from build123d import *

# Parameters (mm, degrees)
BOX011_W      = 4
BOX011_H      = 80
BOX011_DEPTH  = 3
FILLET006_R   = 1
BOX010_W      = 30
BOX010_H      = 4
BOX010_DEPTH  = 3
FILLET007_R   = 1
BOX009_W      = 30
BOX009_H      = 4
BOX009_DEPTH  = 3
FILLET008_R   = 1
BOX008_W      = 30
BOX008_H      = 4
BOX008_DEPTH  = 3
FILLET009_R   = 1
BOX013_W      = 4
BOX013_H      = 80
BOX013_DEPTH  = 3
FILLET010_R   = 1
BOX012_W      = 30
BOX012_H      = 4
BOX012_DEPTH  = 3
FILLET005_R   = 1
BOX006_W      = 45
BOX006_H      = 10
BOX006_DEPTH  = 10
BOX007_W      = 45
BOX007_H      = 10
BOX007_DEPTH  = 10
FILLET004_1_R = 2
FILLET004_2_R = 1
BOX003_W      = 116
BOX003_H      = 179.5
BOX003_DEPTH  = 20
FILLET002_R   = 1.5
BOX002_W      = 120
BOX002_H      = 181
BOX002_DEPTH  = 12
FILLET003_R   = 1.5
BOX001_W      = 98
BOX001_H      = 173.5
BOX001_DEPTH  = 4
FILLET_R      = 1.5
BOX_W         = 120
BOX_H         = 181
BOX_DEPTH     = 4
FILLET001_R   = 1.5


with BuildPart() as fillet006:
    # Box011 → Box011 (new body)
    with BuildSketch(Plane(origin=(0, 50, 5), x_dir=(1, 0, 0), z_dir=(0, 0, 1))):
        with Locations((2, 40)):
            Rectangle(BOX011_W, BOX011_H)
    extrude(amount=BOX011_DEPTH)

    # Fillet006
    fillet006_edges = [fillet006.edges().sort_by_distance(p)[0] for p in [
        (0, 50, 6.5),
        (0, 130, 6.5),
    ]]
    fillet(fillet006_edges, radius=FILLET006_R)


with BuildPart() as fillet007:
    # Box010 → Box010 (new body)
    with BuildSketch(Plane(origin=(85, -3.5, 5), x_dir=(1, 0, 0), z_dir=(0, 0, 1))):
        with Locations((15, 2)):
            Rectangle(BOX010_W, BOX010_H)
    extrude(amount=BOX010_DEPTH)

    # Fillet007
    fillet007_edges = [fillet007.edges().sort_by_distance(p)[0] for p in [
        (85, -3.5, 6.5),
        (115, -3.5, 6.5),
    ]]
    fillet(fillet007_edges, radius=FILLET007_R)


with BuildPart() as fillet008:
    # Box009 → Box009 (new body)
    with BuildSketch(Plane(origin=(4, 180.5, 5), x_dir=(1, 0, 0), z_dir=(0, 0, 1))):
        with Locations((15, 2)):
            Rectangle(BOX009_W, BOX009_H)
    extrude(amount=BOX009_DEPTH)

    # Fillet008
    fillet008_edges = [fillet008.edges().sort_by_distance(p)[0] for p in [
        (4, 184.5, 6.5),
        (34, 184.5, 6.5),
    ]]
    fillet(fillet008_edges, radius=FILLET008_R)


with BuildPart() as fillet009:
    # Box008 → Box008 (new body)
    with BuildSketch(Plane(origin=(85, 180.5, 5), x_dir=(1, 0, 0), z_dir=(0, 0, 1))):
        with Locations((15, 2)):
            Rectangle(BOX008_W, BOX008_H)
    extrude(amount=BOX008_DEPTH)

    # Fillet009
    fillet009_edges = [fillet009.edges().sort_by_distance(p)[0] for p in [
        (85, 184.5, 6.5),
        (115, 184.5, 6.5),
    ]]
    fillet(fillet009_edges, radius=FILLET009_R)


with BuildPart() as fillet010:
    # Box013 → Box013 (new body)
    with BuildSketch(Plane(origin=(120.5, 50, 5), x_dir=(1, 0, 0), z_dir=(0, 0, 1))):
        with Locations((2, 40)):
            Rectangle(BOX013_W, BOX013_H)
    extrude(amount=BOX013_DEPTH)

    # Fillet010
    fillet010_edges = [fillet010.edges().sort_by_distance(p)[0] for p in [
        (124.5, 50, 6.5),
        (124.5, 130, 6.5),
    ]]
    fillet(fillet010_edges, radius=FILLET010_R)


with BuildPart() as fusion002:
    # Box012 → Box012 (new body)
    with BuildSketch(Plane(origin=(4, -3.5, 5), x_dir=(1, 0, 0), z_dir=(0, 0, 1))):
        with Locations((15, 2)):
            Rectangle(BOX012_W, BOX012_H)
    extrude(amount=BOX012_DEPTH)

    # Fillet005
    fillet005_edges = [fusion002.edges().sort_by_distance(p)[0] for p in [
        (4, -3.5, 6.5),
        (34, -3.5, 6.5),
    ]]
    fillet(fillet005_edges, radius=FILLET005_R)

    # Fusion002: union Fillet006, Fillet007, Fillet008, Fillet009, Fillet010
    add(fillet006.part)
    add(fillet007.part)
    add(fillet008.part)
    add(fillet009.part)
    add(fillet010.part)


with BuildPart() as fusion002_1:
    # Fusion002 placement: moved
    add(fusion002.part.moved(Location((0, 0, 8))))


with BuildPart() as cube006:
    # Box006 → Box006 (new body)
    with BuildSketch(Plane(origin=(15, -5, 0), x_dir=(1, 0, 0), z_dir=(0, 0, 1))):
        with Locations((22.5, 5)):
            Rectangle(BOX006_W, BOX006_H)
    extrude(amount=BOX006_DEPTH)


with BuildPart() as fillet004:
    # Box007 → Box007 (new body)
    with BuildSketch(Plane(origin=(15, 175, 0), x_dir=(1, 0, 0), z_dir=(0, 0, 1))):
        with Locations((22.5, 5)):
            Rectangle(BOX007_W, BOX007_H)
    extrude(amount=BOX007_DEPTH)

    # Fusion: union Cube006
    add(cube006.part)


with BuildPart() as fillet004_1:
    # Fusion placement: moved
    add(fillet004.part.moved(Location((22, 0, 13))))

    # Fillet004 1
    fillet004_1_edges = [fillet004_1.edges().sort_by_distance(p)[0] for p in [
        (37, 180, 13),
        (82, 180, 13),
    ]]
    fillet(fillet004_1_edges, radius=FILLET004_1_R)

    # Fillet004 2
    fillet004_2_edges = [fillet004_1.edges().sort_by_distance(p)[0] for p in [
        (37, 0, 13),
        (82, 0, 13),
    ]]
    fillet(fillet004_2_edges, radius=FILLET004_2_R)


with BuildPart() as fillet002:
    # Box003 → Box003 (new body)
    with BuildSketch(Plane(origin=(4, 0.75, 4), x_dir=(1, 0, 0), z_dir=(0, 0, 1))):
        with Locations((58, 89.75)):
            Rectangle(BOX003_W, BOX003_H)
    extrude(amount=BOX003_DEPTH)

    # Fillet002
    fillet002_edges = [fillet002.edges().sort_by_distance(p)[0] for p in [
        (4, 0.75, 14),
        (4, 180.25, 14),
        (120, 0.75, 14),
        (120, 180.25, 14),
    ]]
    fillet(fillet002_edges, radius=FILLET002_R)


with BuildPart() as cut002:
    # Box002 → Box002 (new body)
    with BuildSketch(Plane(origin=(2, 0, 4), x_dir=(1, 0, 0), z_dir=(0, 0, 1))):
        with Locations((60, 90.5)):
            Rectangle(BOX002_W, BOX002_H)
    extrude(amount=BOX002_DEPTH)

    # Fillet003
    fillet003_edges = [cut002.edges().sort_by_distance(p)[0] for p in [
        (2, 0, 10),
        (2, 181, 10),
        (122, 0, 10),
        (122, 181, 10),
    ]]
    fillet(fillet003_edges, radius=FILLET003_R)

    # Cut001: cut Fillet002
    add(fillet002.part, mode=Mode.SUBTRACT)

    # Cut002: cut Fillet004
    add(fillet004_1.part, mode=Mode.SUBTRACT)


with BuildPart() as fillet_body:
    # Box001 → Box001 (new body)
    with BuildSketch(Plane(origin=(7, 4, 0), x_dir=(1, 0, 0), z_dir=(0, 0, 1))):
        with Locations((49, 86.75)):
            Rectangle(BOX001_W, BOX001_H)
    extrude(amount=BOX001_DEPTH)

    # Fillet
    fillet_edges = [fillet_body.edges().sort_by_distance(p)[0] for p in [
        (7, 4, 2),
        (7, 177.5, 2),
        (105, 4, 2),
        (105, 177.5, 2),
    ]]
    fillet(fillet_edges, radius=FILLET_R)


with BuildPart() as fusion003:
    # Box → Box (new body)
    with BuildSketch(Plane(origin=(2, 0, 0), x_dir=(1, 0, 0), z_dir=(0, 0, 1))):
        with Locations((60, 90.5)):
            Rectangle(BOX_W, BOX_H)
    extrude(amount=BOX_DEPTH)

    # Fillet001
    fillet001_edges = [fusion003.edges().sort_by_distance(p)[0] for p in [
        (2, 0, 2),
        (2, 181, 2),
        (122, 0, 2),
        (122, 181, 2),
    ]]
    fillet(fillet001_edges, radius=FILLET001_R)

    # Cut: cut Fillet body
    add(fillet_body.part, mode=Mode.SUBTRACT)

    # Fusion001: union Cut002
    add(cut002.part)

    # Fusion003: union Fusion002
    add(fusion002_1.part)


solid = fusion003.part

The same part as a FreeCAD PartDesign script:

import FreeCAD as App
import Part
import Sketcher

V = App.Vector


def edges_at(feature, points):
    """Names of the edges that pass closest to the given points."""
    edges = feature.Shape.Edges
    near = lambda p: min(range(len(edges)), key=lambda i: edges[i].distToShape(Part.Vertex(*p))[0])
    return sorted({f"Edge{near(p) + 1}" for p in points})

doc = App.newDocument("Part")
body = doc.addObject("PartDesign::Body", "Body")

sketch1 = doc.addObject("Sketcher::SketchObject", "Sketch")
body.addObject(sketch1)
sketch1.AttachmentSupport = (doc.XY_Plane, [""])
sketch1.MapMode = "FlatFace"
sketch1.AttachmentOffset = App.Placement(V(0, 0, 5), App.Rotation())
sketch1.addGeometry([
    Part.LineSegment(V(0, 130, 0), V(0, 50, 0)),
    Part.LineSegment(V(0, 50, 0), V(4, 50, 0)),
    Part.LineSegment(V(4, 50, 0), V(4, 130, 0)),
    Part.LineSegment(V(4, 130, 0), V(0, 130, 0)),
], False)
sketch1.addConstraint([
    Sketcher.Constraint("Coincident", 0, 2, 1, 1),
    Sketcher.Constraint("Coincident", 1, 2, 2, 1),
    Sketcher.Constraint("Coincident", 2, 2, 3, 1),
    Sketcher.Constraint("Coincident", 3, 2, 0, 1),
    Sketcher.Constraint("Vertical", 0),
    Sketcher.Constraint("Horizontal", 1),
    Sketcher.Constraint("Vertical", 2),
    Sketcher.Constraint("Horizontal", 3),
    Sketcher.Constraint("PointOnObject", 0, 2, -2),
    Sketcher.Constraint("DistanceX", 1, 1, 1, 2, 4.0),
    Sketcher.Constraint("DistanceY", 0, 2, 0, 1, 80.0),
    Sketcher.Constraint("DistanceY", -1, 1, 0, 2, 50.0),
])
pad1 = doc.addObject("PartDesign::Pad", "Pad")
body.addObject(pad1)
pad1.Profile = sketch1
pad1.Length = 3
doc.recompute()

fillet = doc.addObject("PartDesign::Fillet", "Fillet")
body.addObject(fillet)
fillet.Base = (pad1, edges_at(pad1, [(0, 50, 6.5), (0, 130, 6.5)]))
fillet.Radius = 1
body2 = doc.addObject("PartDesign::Body", "Body001")

sketch2 = doc.addObject("Sketcher::SketchObject", "Sketch001")
body2.addObject(sketch2)
sketch2.AttachmentSupport = (doc.getObject("XY_Plane001"), [""])
sketch2.MapMode = "FlatFace"
sketch2.AttachmentOffset = App.Placement(V(0, 0, 5), App.Rotation())
sketch2.addGeometry([
    Part.LineSegment(V(85, 0.5, 0), V(85, -3.5, 0)),
    Part.LineSegment(V(85, -3.5, 0), V(115, -3.5, 0)),
    Part.LineSegment(V(115, -3.5, 0), V(115, 0.5, 0)),
    Part.LineSegment(V(115, 0.5, 0), V(85, 0.5, 0)),
], False)
sketch2.addConstraint([
    Sketcher.Constraint("Coincident", 0, 2, 1, 1),
    Sketcher.Constraint("Coincident", 1, 2, 2, 1),
    Sketcher.Constraint("Coincident", 2, 2, 3, 1),
    Sketcher.Constraint("Coincident", 3, 2, 0, 1),
    Sketcher.Constraint("Vertical", 0),
    Sketcher.Constraint("Horizontal", 1),
    Sketcher.Constraint("Vertical", 2),
    Sketcher.Constraint("Horizontal", 3),
    Sketcher.Constraint("DistanceX", 1, 1, 1, 2, 30.0),
    Sketcher.Constraint("DistanceY", 0, 2, 0, 1, 4.0),
    Sketcher.Constraint("DistanceX", -1, 1, 0, 2, 85.0),
    Sketcher.Constraint("DistanceY", 0, 2, -1, 1, 3.5),
])
pad2 = doc.addObject("PartDesign::Pad", "Pad001")
body2.addObject(pad2)
pad2.Profile = sketch2
pad2.Length = 3
doc.recompute()

fillet2 = doc.addObject("PartDesign::Fillet", "Fillet001")
body2.addObject(fillet2)
fillet2.Base = (pad2, edges_at(pad2, [(85, -3.5, 6.5), (115, -3.5, 6.5)]))
fillet2.Radius = 1
body3 = doc.addObject("PartDesign::Body", "Body002")

sketch3 = doc.addObject("Sketcher::SketchObject", "Sketch002")
body3.addObject(sketch3)
sketch3.AttachmentSupport = (doc.getObject("XY_Plane002"), [""])
sketch3.MapMode = "FlatFace"
sketch3.AttachmentOffset = App.Placement(V(0, 0, 5), App.Rotation())
sketch3.addGeometry([
    Part.LineSegment(V(4, 184.5, 0), V(4, 180.5, 0)),
    Part.LineSegment(V(4, 180.5, 0), V(34, 180.5, 0)),
    Part.LineSegment(V(34, 180.5, 0), V(34, 184.5, 0)),
    Part.LineSegment(V(34, 184.5, 0), V(4, 184.5, 0)),
], False)
sketch3.addConstraint([
    Sketcher.Constraint("Coincident", 0, 2, 1, 1),
    Sketcher.Constraint("Coincident", 1, 2, 2, 1),
    Sketcher.Constraint("Coincident", 2, 2, 3, 1),
    Sketcher.Constraint("Coincident", 3, 2, 0, 1),
    Sketcher.Constraint("Vertical", 0),
    Sketcher.Constraint("Horizontal", 1),
    Sketcher.Constraint("Vertical", 2),
    Sketcher.Constraint("Horizontal", 3),
    Sketcher.Constraint("DistanceX", 1, 1, 1, 2, 30.0),
    Sketcher.Constraint("DistanceY", 0, 2, 0, 1, 4.0),
    Sketcher.Constraint("DistanceX", -1, 1, 0, 2, 4.0),
    Sketcher.Constraint("DistanceY", -1, 1, 0, 2, 180.5),
])
pad3 = doc.addObject("PartDesign::Pad", "Pad002")
body3.addObject(pad3)
pad3.Profile = sketch3
pad3.Length = 3
doc.recompute()

fillet3 = doc.addObject("PartDesign::Fillet", "Fillet002")
body3.addObject(fillet3)
fillet3.Base = (pad3, edges_at(pad3, [(4, 184.5, 6.5), (34, 184.5, 6.5)]))
fillet3.Radius = 1
body4 = doc.addObject("PartDesign::Body", "Body003")

sketch4 = doc.addObject("Sketcher::SketchObject", "Sketch003")
body4.addObject(sketch4)
sketch4.AttachmentSupport = (doc.getObject("XY_Plane003"), [""])
sketch4.MapMode = "FlatFace"
sketch4.AttachmentOffset = App.Placement(V(0, 0, 5), App.Rotation())
sketch4.addGeometry([
    Part.LineSegment(V(85, 184.5, 0), V(85, 180.5, 0)),
    Part.LineSegment(V(85, 180.5, 0), V(115, 180.5, 0)),
    Part.LineSegment(V(115, 180.5, 0), V(115, 184.5, 0)),
    Part.LineSegment(V(115, 184.5, 0), V(85, 184.5, 0)),
], False)
sketch4.addConstraint([
    Sketcher.Constraint("Coincident", 0, 2, 1, 1),
    Sketcher.Constraint("Coincident", 1, 2, 2, 1),
    Sketcher.Constraint("Coincident", 2, 2, 3, 1),
    Sketcher.Constraint("Coincident", 3, 2, 0, 1),
    Sketcher.Constraint("Vertical", 0),
    Sketcher.Constraint("Horizontal", 1),
    Sketcher.Constraint("Vertical", 2),
    Sketcher.Constraint("Horizontal", 3),
    Sketcher.Constraint("DistanceX", 1, 1, 1, 2, 30.0),
    Sketcher.Constraint("DistanceY", 0, 2, 0, 1, 4.0),
    Sketcher.Constraint("DistanceX", -1, 1, 0, 2, 85.0),
    Sketcher.Constraint("DistanceY", -1, 1, 0, 2, 180.5),
])
pad4 = doc.addObject("PartDesign::Pad", "Pad003")
body4.addObject(pad4)
pad4.Profile = sketch4
pad4.Length = 3
doc.recompute()

fillet4 = doc.addObject("PartDesign::Fillet", "Fillet003")
body4.addObject(fillet4)
fillet4.Base = (pad4, edges_at(pad4, [(85, 184.5, 6.5), (115, 184.5, 6.5)]))
fillet4.Radius = 1
body5 = doc.addObject("PartDesign::Body", "Body004")

sketch5 = doc.addObject("Sketcher::SketchObject", "Sketch004")
body5.addObject(sketch5)
sketch5.AttachmentSupport = (doc.getObject("XY_Plane004"), [""])
sketch5.MapMode = "FlatFace"
sketch5.AttachmentOffset = App.Placement(V(0, 0, 5), App.Rotation())
sketch5.addGeometry([
    Part.LineSegment(V(120.5, 130, 0), V(120.5, 50, 0)),
    Part.LineSegment(V(120.5, 50, 0), V(124.5, 50, 0)),
    Part.LineSegment(V(124.5, 50, 0), V(124.5, 130, 0)),
    Part.LineSegment(V(124.5, 130, 0), V(120.5, 130, 0)),
], False)
sketch5.addConstraint([
    Sketcher.Constraint("Coincident", 0, 2, 1, 1),
    Sketcher.Constraint("Coincident", 1, 2, 2, 1),
    Sketcher.Constraint("Coincident", 2, 2, 3, 1),
    Sketcher.Constraint("Coincident", 3, 2, 0, 1),
    Sketcher.Constraint("Vertical", 0),
    Sketcher.Constraint("Horizontal", 1),
    Sketcher.Constraint("Vertical", 2),
    Sketcher.Constraint("Horizontal", 3),
    Sketcher.Constraint("DistanceX", 1, 1, 1, 2, 4.0),
    Sketcher.Constraint("DistanceY", 0, 2, 0, 1, 80.0),
    Sketcher.Constraint("DistanceY", -1, 1, 0, 2, 50.0),
    Sketcher.Constraint("DistanceX", -1, 1, 0, 2, 120.5),
])
pad5 = doc.addObject("PartDesign::Pad", "Pad004")
body5.addObject(pad5)
pad5.Profile = sketch5
pad5.Length = 3
doc.recompute()

fillet5 = doc.addObject("PartDesign::Fillet", "Fillet004")
body5.addObject(fillet5)
fillet5.Base = (pad5, edges_at(pad5, [(124.5, 50, 6.5), (124.5, 130, 6.5)]))
fillet5.Radius = 1
body6 = doc.addObject("PartDesign::Body", "Body005")
body6.AllowCompound = True

sketch6 = doc.addObject("Sketcher::SketchObject", "Sketch005")
body6.addObject(sketch6)
sketch6.AttachmentSupport = (doc.getObject("XY_Plane005"), [""])
sketch6.MapMode = "FlatFace"
sketch6.AttachmentOffset = App.Placement(V(0, 0, 5), App.Rotation())
sketch6.addGeometry([
    Part.LineSegment(V(4, 0.5, 0), V(4, -3.5, 0)),
    Part.LineSegment(V(4, -3.5, 0), V(34, -3.5, 0)),
    Part.LineSegment(V(34, -3.5, 0), V(34, 0.5, 0)),
    Part.LineSegment(V(34, 0.5, 0), V(4, 0.5, 0)),
], False)
sketch6.addConstraint([
    Sketcher.Constraint("Coincident", 0, 2, 1, 1),
    Sketcher.Constraint("Coincident", 1, 2, 2, 1),
    Sketcher.Constraint("Coincident", 2, 2, 3, 1),
    Sketcher.Constraint("Coincident", 3, 2, 0, 1),
    Sketcher.Constraint("Vertical", 0),
    Sketcher.Constraint("Horizontal", 1),
    Sketcher.Constraint("Vertical", 2),
    Sketcher.Constraint("Horizontal", 3),
    Sketcher.Constraint("DistanceX", 1, 1, 1, 2, 30.0),
    Sketcher.Constraint("DistanceY", 0, 2, 0, 1, 4.0),
    Sketcher.Constraint("DistanceX", -1, 1, 0, 2, 4.0),
    Sketcher.Constraint("DistanceY", 0, 2, -1, 1, 3.5),
])
pad6 = doc.addObject("PartDesign::Pad", "Pad005")
body6.addObject(pad6)
pad6.Profile = sketch6
pad6.Length = 3
doc.recompute()

fillet6 = doc.addObject("PartDesign::Fillet", "Fillet005")
body6.addObject(fillet6)
fillet6.Base = (pad6, edges_at(pad6, [(4, -3.5, 6.5), (34, -3.5, 6.5)]))
fillet6.Radius = 1
doc.recompute()

boolean = doc.addObject("PartDesign::Boolean", "Boolean")
body6.addObject(boolean)
boolean.Type = "Fuse"
boolean.addObjects([body])
doc.recompute()

boolean2 = doc.addObject("PartDesign::Boolean", "Boolean001")
body6.addObject(boolean2)
boolean2.Type = "Fuse"
boolean2.addObjects([body2])
doc.recompute()

boolean3 = doc.addObject("PartDesign::Boolean", "Boolean002")
body6.addObject(boolean3)
boolean3.Type = "Fuse"
boolean3.addObjects([body3])
doc.recompute()

boolean4 = doc.addObject("PartDesign::Boolean", "Boolean003")
body6.addObject(boolean4)
boolean4.Type = "Fuse"
boolean4.addObjects([body4])
doc.recompute()

boolean5 = doc.addObject("PartDesign::Boolean", "Boolean004")
body6.addObject(boolean5)
boolean5.Type = "Fuse"
boolean5.addObjects([body5])
body7 = doc.addObject("PartDesign::Body", "Body006")
body7.AllowCompound = True
doc.recompute()

body6.Placement = App.Placement(V(0, 0, 8), App.Rotation(V(0, 0, 1), 0))
boolean6 = doc.addObject("PartDesign::Boolean", "Boolean005")
body7.addObject(boolean6)
boolean6.Type = "Fuse"
boolean6.addObjects([body6])
body8 = doc.addObject("PartDesign::Body", "Body007")

sketch7 = doc.addObject("Sketcher::SketchObject", "Sketch006")
body8.addObject(sketch7)
sketch7.AttachmentSupport = (doc.getObject("XY_Plane007"), [""])
sketch7.MapMode = "FlatFace"
sketch7.addGeometry([
    Part.LineSegment(V(15, 5, 0), V(15, -5, 0)),
    Part.LineSegment(V(15, -5, 0), V(60, -5, 0)),
    Part.LineSegment(V(60, -5, 0), V(60, 5, 0)),
    Part.LineSegment(V(60, 5, 0), V(15, 5, 0)),
], False)
sketch7.addConstraint([
    Sketcher.Constraint("Coincident", 0, 2, 1, 1),
    Sketcher.Constraint("Coincident", 1, 2, 2, 1),
    Sketcher.Constraint("Coincident", 2, 2, 3, 1),
    Sketcher.Constraint("Coincident", 3, 2, 0, 1),
    Sketcher.Constraint("Vertical", 0),
    Sketcher.Constraint("Horizontal", 1),
    Sketcher.Constraint("Vertical", 2),
    Sketcher.Constraint("Horizontal", 3),
    Sketcher.Constraint("DistanceX", 1, 1, 1, 2, 45.0),
    Sketcher.Constraint("DistanceY", 0, 2, 0, 1, 10.0),
    Sketcher.Constraint("DistanceX", -1, 1, 0, 2, 15.0),
    Sketcher.Constraint("DistanceY", 0, 2, -1, 1, 5.0),
])
pad7 = doc.addObject("PartDesign::Pad", "Pad006")
body8.addObject(pad7)
pad7.Profile = sketch7
pad7.Length = 10
body9 = doc.addObject("PartDesign::Body", "Body008")
body9.AllowCompound = True

sketch8 = doc.addObject("Sketcher::SketchObject", "Sketch007")
body9.addObject(sketch8)
sketch8.AttachmentSupport = (doc.getObject("XY_Plane008"), [""])
sketch8.MapMode = "FlatFace"
sketch8.addGeometry([
    Part.LineSegment(V(15, 185, 0), V(15, 175, 0)),
    Part.LineSegment(V(15, 175, 0), V(60, 175, 0)),
    Part.LineSegment(V(60, 175, 0), V(60, 185, 0)),
    Part.LineSegment(V(60, 185, 0), V(15, 185, 0)),
], False)
sketch8.addConstraint([
    Sketcher.Constraint("Coincident", 0, 2, 1, 1),
    Sketcher.Constraint("Coincident", 1, 2, 2, 1),
    Sketcher.Constraint("Coincident", 2, 2, 3, 1),
    Sketcher.Constraint("Coincident", 3, 2, 0, 1),
    Sketcher.Constraint("Vertical", 0),
    Sketcher.Constraint("Horizontal", 1),
    Sketcher.Constraint("Vertical", 2),
    Sketcher.Constraint("Horizontal", 3),
    Sketcher.Constraint("DistanceX", 1, 1, 1, 2, 45.0),
    Sketcher.Constraint("DistanceY", 0, 2, 0, 1, 10.0),
    Sketcher.Constraint("DistanceX", -1, 1, 0, 2, 15.0),
    Sketcher.Constraint("DistanceY", -1, 1, 0, 2, 175.0),
])
pad8 = doc.addObject("PartDesign::Pad", "Pad007")
body9.addObject(pad8)
pad8.Profile = sketch8
pad8.Length = 10
doc.recompute()

boolean7 = doc.addObject("PartDesign::Boolean", "Boolean006")
body9.addObject(boolean7)
boolean7.Type = "Fuse"
boolean7.addObjects([body8])
body10 = doc.addObject("PartDesign::Body", "Body009")
body10.AllowCompound = True
doc.recompute()

body9.Placement = App.Placement(V(22, 0, 13), App.Rotation(V(0, 0, 1), 0))
boolean8 = doc.addObject("PartDesign::Boolean", "Boolean007")
body10.addObject(boolean8)
boolean8.Type = "Fuse"
boolean8.addObjects([body9])
doc.recompute()

fillet7 = doc.addObject("PartDesign::Fillet", "Fillet006")
body10.addObject(fillet7)
fillet7.Base = (boolean8, edges_at(boolean8, [(37, 180, 13), (82, 180, 13)]))
fillet7.Radius = 2
doc.recompute()

fillet8 = doc.addObject("PartDesign::Fillet", "Fillet007")
body10.addObject(fillet8)
fillet8.Base = (fillet7, edges_at(fillet7, [(37, 0, 13), (82, 0, 13)]))
fillet8.Radius = 1
body11 = doc.addObject("PartDesign::Body", "Body010")

sketch9 = doc.addObject("Sketcher::SketchObject", "Sketch008")
body11.addObject(sketch9)
sketch9.AttachmentSupport = (doc.getObject("XY_Plane010"), [""])
sketch9.MapMode = "FlatFace"
sketch9.AttachmentOffset = App.Placement(V(0, 0, 4), App.Rotation())
sketch9.addGeometry([
    Part.LineSegment(V(4, 180, 0), V(4, 1, 0)),
    Part.LineSegment(V(4, 1, 0), V(120, 1, 0)),
    Part.LineSegment(V(120, 1, 0), V(120, 180, 0)),
    Part.LineSegment(V(120, 180, 0), V(4, 180, 0)),
], False)
sketch9.addConstraint([
    Sketcher.Constraint("Coincident", 0, 2, 1, 1),
    Sketcher.Constraint("Coincident", 1, 2, 2, 1),
    Sketcher.Constraint("Coincident", 2, 2, 3, 1),
    Sketcher.Constraint("Coincident", 3, 2, 0, 1),
    Sketcher.Constraint("Vertical", 0),
    Sketcher.Constraint("Horizontal", 1),
    Sketcher.Constraint("Vertical", 2),
    Sketcher.Constraint("Horizontal", 3),
    Sketcher.Constraint("DistanceX", 1, 1, 1, 2, 116.0),
    Sketcher.Constraint("DistanceY", 0, 2, 0, 1, 179.5),
    Sketcher.Constraint("DistanceX", -1, 1, 0, 2, 4.0),
    Sketcher.Constraint("DistanceY", -1, 1, 0, 2, 0.75),
])
pad9 = doc.addObject("PartDesign::Pad", "Pad008")
body11.addObject(pad9)
pad9.Profile = sketch9
pad9.Length = 20
doc.recompute()

fillet9 = doc.addObject("PartDesign::Fillet", "Fillet008")
body11.addObject(fillet9)
fillet9.Base = (pad9, edges_at(pad9, [
    (4, 0.75, 14),
    (4, 180.25, 14),
    (120, 0.75, 14),
    (120, 180.25, 14),
]))
fillet9.Radius = 1.5
body12 = doc.addObject("PartDesign::Body", "Body011")

sketch10 = doc.addObject("Sketcher::SketchObject", "Sketch009")
body12.addObject(sketch10)
sketch10.AttachmentSupport = (doc.getObject("XY_Plane011"), [""])
sketch10.MapMode = "FlatFace"
sketch10.AttachmentOffset = App.Placement(V(0, 0, 4), App.Rotation())
sketch10.addGeometry([
    Part.LineSegment(V(2, 181, 0), V(2, 0, 0)),
    Part.LineSegment(V(2, 0, 0), V(122, 0, 0)),
    Part.LineSegment(V(122, 0, 0), V(122, 181, 0)),
    Part.LineSegment(V(122, 181, 0), V(2, 181, 0)),
], False)
sketch10.addConstraint([
    Sketcher.Constraint("Coincident", 0, 2, 1, 1),
    Sketcher.Constraint("Coincident", 1, 2, 2, 1),
    Sketcher.Constraint("Coincident", 2, 2, 3, 1),
    Sketcher.Constraint("Coincident", 3, 2, 0, 1),
    Sketcher.Constraint("Vertical", 0),
    Sketcher.Constraint("Horizontal", 1),
    Sketcher.Constraint("Vertical", 2),
    Sketcher.Constraint("Horizontal", 3),
    Sketcher.Constraint("PointOnObject", 0, 2, -1),
    Sketcher.Constraint("DistanceX", 1, 1, 1, 2, 120.0),
    Sketcher.Constraint("DistanceY", 0, 2, 0, 1, 181.0),
    Sketcher.Constraint("DistanceX", -1, 1, 0, 2, 2.0),
])
pad10 = doc.addObject("PartDesign::Pad", "Pad009")
body12.addObject(pad10)
pad10.Profile = sketch10
pad10.Length = 12
doc.recompute()

fillet10 = doc.addObject("PartDesign::Fillet", "Fillet009")
body12.addObject(fillet10)
fillet10.Base = (pad10, edges_at(pad10, [
    (2, 0, 10),
    (2, 181, 10),
    (122, 0, 10),
    (122, 181, 10),
]))
fillet10.Radius = 1.5
doc.recompute()

boolean9 = doc.addObject("PartDesign::Boolean", "Boolean008")
body12.addObject(boolean9)
boolean9.Type = "Cut"
boolean9.addObjects([body11])
doc.recompute()

boolean10 = doc.addObject("PartDesign::Boolean", "Boolean009")
body12.addObject(boolean10)
boolean10.Type = "Cut"
boolean10.addObjects([body10])
body13 = doc.addObject("PartDesign::Body", "Body012")

sketch11 = doc.addObject("Sketcher::SketchObject", "Sketch010")
body13.addObject(sketch11)
sketch11.AttachmentSupport = (doc.getObject("XY_Plane012"), [""])
sketch11.MapMode = "FlatFace"
sketch11.addGeometry([
    Part.LineSegment(V(7, 178, 0), V(7, 4, 0)),
    Part.LineSegment(V(7, 4, 0), V(105, 4, 0)),
    Part.LineSegment(V(105, 4, 0), V(105, 178, 0)),
    Part.LineSegment(V(105, 178, 0), V(7, 178, 0)),
], False)
sketch11.addConstraint([
    Sketcher.Constraint("Coincident", 0, 2, 1, 1),
    Sketcher.Constraint("Coincident", 1, 2, 2, 1),
    Sketcher.Constraint("Coincident", 2, 2, 3, 1),
    Sketcher.Constraint("Coincident", 3, 2, 0, 1),
    Sketcher.Constraint("Vertical", 0),
    Sketcher.Constraint("Horizontal", 1),
    Sketcher.Constraint("Vertical", 2),
    Sketcher.Constraint("Horizontal", 3),
    Sketcher.Constraint("DistanceX", 1, 1, 1, 2, 98.0),
    Sketcher.Constraint("DistanceY", 0, 2, 0, 1, 173.5),
    Sketcher.Constraint("DistanceX", -1, 1, 0, 2, 7.0),
    Sketcher.Constraint("DistanceY", -1, 1, 0, 2, 4.0),
])
pad11 = doc.addObject("PartDesign::Pad", "Pad010")
body13.addObject(pad11)
pad11.Profile = sketch11
pad11.Length = 4
doc.recompute()

fillet11 = doc.addObject("PartDesign::Fillet", "Fillet010")
body13.addObject(fillet11)
fillet11.Base = (pad11, edges_at(pad11, [
    (7, 4, 2),
    (7, 177.5, 2),
    (105, 4, 2),
    (105, 177.5, 2),
]))
fillet11.Radius = 1.5
body14 = doc.addObject("PartDesign::Body", "Body013")

sketch12 = doc.addObject("Sketcher::SketchObject", "Sketch011")
body14.addObject(sketch12)
sketch12.AttachmentSupport = (doc.getObject("XY_Plane013"), [""])
sketch12.MapMode = "FlatFace"
sketch12.addGeometry([
    Part.LineSegment(V(2, 181, 0), V(2, 0, 0)),
    Part.LineSegment(V(2, 0, 0), V(122, 0, 0)),
    Part.LineSegment(V(122, 0, 0), V(122, 181, 0)),
    Part.LineSegment(V(122, 181, 0), V(2, 181, 0)),
], False)
sketch12.addConstraint([
    Sketcher.Constraint("Coincident", 0, 2, 1, 1),
    Sketcher.Constraint("Coincident", 1, 2, 2, 1),
    Sketcher.Constraint("Coincident", 2, 2, 3, 1),
    Sketcher.Constraint("Coincident", 3, 2, 0, 1),
    Sketcher.Constraint("Vertical", 0),
    Sketcher.Constraint("Horizontal", 1),
    Sketcher.Constraint("Vertical", 2),
    Sketcher.Constraint("Horizontal", 3),
    Sketcher.Constraint("PointOnObject", 0, 2, -1),
    Sketcher.Constraint("DistanceX", 1, 1, 1, 2, 120.0),
    Sketcher.Constraint("DistanceY", 0, 2, 0, 1, 181.0),
    Sketcher.Constraint("DistanceX", -1, 1, 0, 2, 2.0),
])
pad12 = doc.addObject("PartDesign::Pad", "Pad011")
body14.addObject(pad12)
pad12.Profile = sketch12
pad12.Length = 4
doc.recompute()

fillet12 = doc.addObject("PartDesign::Fillet", "Fillet011")
body14.addObject(fillet12)
fillet12.Base = (pad12, edges_at(pad12, [
    (2, 0, 2),
    (2, 181, 2),
    (122, 0, 2),
    (122, 181, 2),
]))
fillet12.Radius = 1.5
doc.recompute()

boolean11 = doc.addObject("PartDesign::Boolean", "Boolean010")
body14.addObject(boolean11)
boolean11.Type = "Cut"
boolean11.addObjects([body13])
doc.recompute()

boolean12 = doc.addObject("PartDesign::Boolean", "Boolean011")
body14.addObject(boolean12)
boolean12.Type = "Fuse"
boolean12.addObjects([body12])
doc.recompute()

boolean13 = doc.addObject("PartDesign::Boolean", "Boolean012")
body14.addObject(boolean13)
boolean13.Type = "Fuse"
boolean13.addObjects([body7])

doc.recompute()
